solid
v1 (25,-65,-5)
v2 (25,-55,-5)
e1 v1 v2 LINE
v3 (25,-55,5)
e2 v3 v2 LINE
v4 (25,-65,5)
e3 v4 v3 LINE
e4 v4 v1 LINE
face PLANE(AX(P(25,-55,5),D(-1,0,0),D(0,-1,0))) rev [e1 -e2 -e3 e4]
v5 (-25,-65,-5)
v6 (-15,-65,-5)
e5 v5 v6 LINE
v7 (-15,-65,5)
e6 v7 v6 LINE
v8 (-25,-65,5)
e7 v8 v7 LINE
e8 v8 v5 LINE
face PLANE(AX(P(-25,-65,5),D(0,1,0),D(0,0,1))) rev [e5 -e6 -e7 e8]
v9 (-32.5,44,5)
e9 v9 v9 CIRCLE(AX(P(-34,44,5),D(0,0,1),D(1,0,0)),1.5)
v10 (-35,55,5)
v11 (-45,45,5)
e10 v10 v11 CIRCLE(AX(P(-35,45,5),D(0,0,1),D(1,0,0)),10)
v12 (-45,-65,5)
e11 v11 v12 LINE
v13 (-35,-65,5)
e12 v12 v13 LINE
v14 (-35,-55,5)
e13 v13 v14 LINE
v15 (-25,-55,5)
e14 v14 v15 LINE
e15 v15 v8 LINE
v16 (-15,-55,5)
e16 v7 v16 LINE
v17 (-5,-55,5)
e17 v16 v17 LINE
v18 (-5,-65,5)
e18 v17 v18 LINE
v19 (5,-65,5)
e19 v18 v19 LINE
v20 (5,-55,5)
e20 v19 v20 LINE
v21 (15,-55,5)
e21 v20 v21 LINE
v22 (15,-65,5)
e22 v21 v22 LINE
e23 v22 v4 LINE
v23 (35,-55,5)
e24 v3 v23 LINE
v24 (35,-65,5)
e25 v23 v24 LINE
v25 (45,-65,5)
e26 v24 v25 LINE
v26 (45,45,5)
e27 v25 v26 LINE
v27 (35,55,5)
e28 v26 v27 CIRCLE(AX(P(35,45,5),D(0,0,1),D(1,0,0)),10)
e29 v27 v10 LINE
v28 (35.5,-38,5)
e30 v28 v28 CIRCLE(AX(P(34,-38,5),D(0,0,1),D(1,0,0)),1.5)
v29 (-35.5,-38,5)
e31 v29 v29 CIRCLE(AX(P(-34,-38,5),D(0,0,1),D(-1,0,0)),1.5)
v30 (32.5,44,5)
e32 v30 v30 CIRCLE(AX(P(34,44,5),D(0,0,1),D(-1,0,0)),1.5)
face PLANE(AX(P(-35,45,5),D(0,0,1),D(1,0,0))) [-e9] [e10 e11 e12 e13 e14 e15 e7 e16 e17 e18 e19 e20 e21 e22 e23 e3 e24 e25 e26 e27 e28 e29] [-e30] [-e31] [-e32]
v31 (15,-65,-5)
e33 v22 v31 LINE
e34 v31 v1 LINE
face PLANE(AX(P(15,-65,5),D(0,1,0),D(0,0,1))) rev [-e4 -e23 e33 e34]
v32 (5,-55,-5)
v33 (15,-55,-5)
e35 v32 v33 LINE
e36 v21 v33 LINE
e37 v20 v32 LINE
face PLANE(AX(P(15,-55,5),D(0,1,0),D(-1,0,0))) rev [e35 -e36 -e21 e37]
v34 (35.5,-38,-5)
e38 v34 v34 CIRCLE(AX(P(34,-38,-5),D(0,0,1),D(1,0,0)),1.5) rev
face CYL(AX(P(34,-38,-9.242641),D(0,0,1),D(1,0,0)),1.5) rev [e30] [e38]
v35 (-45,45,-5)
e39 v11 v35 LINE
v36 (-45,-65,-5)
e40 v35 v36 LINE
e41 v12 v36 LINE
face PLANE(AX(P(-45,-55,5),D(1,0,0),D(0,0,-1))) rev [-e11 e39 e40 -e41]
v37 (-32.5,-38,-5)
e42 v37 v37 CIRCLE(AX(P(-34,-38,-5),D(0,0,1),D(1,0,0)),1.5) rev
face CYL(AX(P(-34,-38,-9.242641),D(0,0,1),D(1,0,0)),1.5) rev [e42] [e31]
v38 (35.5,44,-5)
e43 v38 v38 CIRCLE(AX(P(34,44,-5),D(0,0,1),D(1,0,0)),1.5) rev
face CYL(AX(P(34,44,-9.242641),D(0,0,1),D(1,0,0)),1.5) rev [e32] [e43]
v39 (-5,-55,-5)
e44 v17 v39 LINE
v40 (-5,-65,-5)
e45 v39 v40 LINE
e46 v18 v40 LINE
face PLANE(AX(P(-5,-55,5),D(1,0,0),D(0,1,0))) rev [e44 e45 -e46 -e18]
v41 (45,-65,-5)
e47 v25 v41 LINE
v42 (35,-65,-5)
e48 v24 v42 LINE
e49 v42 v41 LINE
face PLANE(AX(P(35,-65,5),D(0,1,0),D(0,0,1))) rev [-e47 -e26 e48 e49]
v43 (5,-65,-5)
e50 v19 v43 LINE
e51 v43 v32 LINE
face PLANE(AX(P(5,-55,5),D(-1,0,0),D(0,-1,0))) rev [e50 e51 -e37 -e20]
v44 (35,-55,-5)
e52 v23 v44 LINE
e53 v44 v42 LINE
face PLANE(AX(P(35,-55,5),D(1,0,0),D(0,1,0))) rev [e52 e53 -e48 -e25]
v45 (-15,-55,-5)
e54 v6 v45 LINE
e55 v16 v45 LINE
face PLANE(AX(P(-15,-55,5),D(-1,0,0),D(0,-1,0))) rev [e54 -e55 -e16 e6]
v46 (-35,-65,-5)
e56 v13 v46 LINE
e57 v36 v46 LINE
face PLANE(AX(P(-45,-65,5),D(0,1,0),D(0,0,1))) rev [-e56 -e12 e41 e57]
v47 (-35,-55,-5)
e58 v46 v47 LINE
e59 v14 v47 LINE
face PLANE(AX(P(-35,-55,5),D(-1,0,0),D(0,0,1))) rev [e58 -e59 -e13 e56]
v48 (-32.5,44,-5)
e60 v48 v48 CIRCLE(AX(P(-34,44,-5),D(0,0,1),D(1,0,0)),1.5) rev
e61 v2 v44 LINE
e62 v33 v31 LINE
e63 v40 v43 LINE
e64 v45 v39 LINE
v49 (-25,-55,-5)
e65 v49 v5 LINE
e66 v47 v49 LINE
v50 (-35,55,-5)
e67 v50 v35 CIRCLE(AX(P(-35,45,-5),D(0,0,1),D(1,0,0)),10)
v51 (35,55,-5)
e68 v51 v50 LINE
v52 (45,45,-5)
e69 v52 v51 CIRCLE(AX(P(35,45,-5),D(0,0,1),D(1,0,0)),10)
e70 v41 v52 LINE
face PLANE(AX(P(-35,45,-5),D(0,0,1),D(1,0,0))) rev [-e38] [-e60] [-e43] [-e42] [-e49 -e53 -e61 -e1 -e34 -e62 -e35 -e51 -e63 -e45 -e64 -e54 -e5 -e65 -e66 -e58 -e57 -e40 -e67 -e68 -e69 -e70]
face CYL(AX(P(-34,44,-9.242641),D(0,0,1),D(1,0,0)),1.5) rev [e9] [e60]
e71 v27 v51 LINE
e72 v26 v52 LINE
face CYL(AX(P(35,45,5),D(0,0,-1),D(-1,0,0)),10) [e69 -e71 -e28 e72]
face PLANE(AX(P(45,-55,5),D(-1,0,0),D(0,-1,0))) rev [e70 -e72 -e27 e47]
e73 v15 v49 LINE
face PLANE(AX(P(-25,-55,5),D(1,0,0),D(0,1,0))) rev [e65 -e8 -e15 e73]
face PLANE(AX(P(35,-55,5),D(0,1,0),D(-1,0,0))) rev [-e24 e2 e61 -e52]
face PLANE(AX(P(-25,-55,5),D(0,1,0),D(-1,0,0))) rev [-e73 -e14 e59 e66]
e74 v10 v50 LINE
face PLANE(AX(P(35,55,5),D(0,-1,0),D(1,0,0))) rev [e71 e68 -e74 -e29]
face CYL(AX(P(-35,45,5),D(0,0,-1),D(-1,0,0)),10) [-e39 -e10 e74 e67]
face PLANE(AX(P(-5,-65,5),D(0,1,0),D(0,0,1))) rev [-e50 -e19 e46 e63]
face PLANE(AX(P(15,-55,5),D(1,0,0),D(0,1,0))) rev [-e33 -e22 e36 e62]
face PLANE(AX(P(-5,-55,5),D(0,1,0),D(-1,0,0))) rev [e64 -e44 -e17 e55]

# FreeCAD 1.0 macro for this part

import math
import FreeCAD as App
import Part
import Sketcher
from FreeCAD import Vector
Q = App.Units.Quantity

doc = App.newDocument("Part")
params = doc.addObject("Spreadsheet::Sheet", "Params")
for row, (alias, value) in enumerate([
    ("sketch1_radius", "10 mm"),
    ("sketch1_height", "110 mm"),
    ("pad1_length", "10 mm"),
    ("sketch2_diameter", "3 mm"),
    ("pocket1_length", "10 mm"),
], start=1):
    params.set(f"A{row}", alias)
    params.set(f"B{row}", "=" + value)
    params.setAlias(f"B{row}", alias)

body = doc.addObject("PartDesign::Body", "Body")

# Sketch on XY plane
sketch1 = body.newObject("Sketcher::SketchObject", "Sketch")
sketch1.AttachmentSupport = (doc.getObject("XY_Plane"), [""])
sketch1.MapMode = "FlatFace"
sketch1.addGeometry(Part.LineSegment(Vector(-15, -65, 0), Vector(-15, -55, 0)), False)
sketch1.addGeometry(Part.LineSegment(Vector(-15, -55, 0), Vector(-5, -55, 0)), False)
sketch1.addGeometry(Part.LineSegment(Vector(-5, -55, 0), Vector(-5, -65, 0)), False)
sketch1.addGeometry(Part.LineSegment(Vector(-5, -65, 0), Vector(5, -65, 0)), False)
sketch1.addGeometry(Part.LineSegment(Vector(5, -65, 0), Vector(5, -55, 0)), False)
sketch1.addGeometry(Part.LineSegment(Vector(5, -55, 0), Vector(15, -55, 0)), False)
sketch1.addGeometry(Part.LineSegment(Vector(15, -55, 0), Vector(15, -65, 0)), False)
sketch1.addGeometry(Part.LineSegment(Vector(15, -65, 0), Vector(25, -65, 0)), False)
sketch1.addGeometry(Part.LineSegment(Vector(25, -65, 0), Vector(25, -55, 0)), False)
sketch1.addGeometry(Part.LineSegment(Vector(25, -55, 0), Vector(35, -55, 0)), False)
sketch1.addGeometry(Part.LineSegment(Vector(35, -55, 0), Vector(35, -65, 0)), False)
sketch1.addGeometry(Part.LineSegment(Vector(35, -65, 0), Vector(45, -65, 0)), False)
sketch1.addGeometry(Part.LineSegment(Vector(45, -65, 0), Vector(45, 45, 0)), False)
sketch1.addGeometry(Part.ArcOfCircle(Part.Circle(Vector(35, 45, 0), Vector(0, 0, 1), 10), math.radians(0), math.radians(90)), False)
sketch1.addGeometry(Part.LineSegment(Vector(35, 55, 0), Vector(-35, 55, 0)), False)
sketch1.addGeometry(Part.ArcOfCircle(Part.Circle(Vector(-35, 45, 0), Vector(0, 0, 1), 10), math.radians(90), math.radians(180)), False)
sketch1.addGeometry(Part.LineSegment(Vector(-45, 45, 0), Vector(-45, -65, 0)), False)
sketch1.addGeometry(Part.LineSegment(Vector(-45, -65, 0), Vector(-35, -65, 0)), False)
sketch1.addGeometry(Part.LineSegment(Vector(-35, -65, 0), Vector(-35, -55, 0)), False)
sketch1.addGeometry(Part.LineSegment(Vector(-35, -55, 0), Vector(-25, -55, 0)), False)
sketch1.addGeometry(Part.LineSegment(Vector(-25, -55, 0), Vector(-25, -65, 0)), False)
sketch1.addGeometry(Part.LineSegment(Vector(-25, -65, 0), Vector(-15, -65, 0)), False)
sketch1.addConstraint(Sketcher.Constraint("Coincident", 0, 2, 1, 1))
sketch1.addConstraint(Sketcher.Constraint("Coincident", 1, 2, 2, 1))
sketch1.addConstraint(Sketcher.Constraint("Coincident", 2, 2, 3, 1))
sketch1.addConstraint(Sketcher.Constraint("Coincident", 3, 2, 4, 1))
sketch1.addConstraint(Sketcher.Constraint("Coincident", 4, 2, 5, 1))
sketch1.addConstraint(Sketcher.Constraint("Coincident", 5, 2, 6, 1))
sketch1.addConstraint(Sketcher.Constraint("Coincident", 6, 2, 7, 1))
sketch1.addConstraint(Sketcher.Constraint("Coincident", 7, 2, 8, 1))
sketch1.addConstraint(Sketcher.Constraint("Coincident", 8, 2, 9, 1))
sketch1.addConstraint(Sketcher.Constraint("Coincident", 9, 2, 10, 1))
sketch1.addConstraint(Sketcher.Constraint("Coincident", 10, 2, 11, 1))
sketch1.addConstraint(Sketcher.Constraint("Coincident", 11, 2, 12, 1))
sketch1.addConstraint(Sketcher.Constraint("Tangent", 12, 2, 13, 1))
sketch1.addConstraint(Sketcher.Constraint("Tangent", 13, 2, 14, 1))
sketch1.addConstraint(Sketcher.Constraint("Tangent", 14, 2, 15, 1))
sketch1.addConstraint(Sketcher.Constraint("Tangent", 15, 2, 16, 1))
sketch1.addConstraint(Sketcher.Constraint("Coincident", 16, 2, 17, 1))
sketch1.addConstraint(Sketcher.Constraint("Coincident", 17, 2, 18, 1))
sketch1.addConstraint(Sketcher.Constraint("Coincident", 18, 2, 19, 1))
sketch1.addConstraint(Sketcher.Constraint("Coincident", 19, 2, 20, 1))
sketch1.addConstraint(Sketcher.Constraint("Coincident", 20, 2, 21, 1))
sketch1.addConstraint(Sketcher.Constraint("Coincident", 21, 2, 0, 1))
sketch1.addConstraint(Sketcher.Constraint("Vertical", 0))
sketch1.addConstraint(Sketcher.Constraint("Horizontal", 1))
sketch1.addConstraint(Sketcher.Constraint("Vertical", 2))
sketch1.addConstraint(Sketcher.Constraint("Horizontal", 3))
sketch1.addConstraint(Sketcher.Constraint("Vertical", 4))
sketch1.addConstraint(Sketcher.Constraint("Horizontal", 5))
sketch1.addConstraint(Sketcher.Constraint("Vertical", 6))
sketch1.addConstraint(Sketcher.Constraint("Horizontal", 7))
sketch1.addConstraint(Sketcher.Constraint("Vertical", 8))
sketch1.addConstraint(Sketcher.Constraint("Horizontal", 9))
sketch1.addConstraint(Sketcher.Constraint("Vertical", 10))
sketch1.addConstraint(Sketcher.Constraint("Horizontal", 11))
sketch1.addConstraint(Sketcher.Constraint("Vertical", 12))
sketch1.addConstraint(Sketcher.Constraint("Horizontal", 14))
sketch1.addConstraint(Sketcher.Constraint("Vertical", 16))
sketch1.addConstraint(Sketcher.Constraint("Horizontal", 17))
sketch1.addConstraint(Sketcher.Constraint("Vertical", 18))
sketch1.addConstraint(Sketcher.Constraint("Horizontal", 19))
sketch1.addConstraint(Sketcher.Constraint("Vertical", 20))
sketch1.addConstraint(Sketcher.Constraint("Horizontal", 21))
sketch1.addConstraint(Sketcher.Constraint("Equal", 13, 15))
sketch1.addConstraint(Sketcher.Constraint("Symmetric", 9, 2, 14, 2, -1, 1))
sketch1.addConstraint(Sketcher.Constraint("Symmetric", 13, 2, 18, 2, -1, 1))
sketch1.addConstraint(Sketcher.Constraint("Symmetric", 1, 2, 4, 2, -2))
sketch1.addConstraint(Sketcher.Constraint("Symmetric", 11, 2, 16, 2, -2))
sketch1.addConstraint(Sketcher.Constraint("Symmetric", 7, 2, 20, 2, -2))
sketch1.addConstraint(Sketcher.Constraint("Horizontal", 3, 2, 6, 2))
sketch1.addConstraint(Sketcher.Constraint("Horizontal", 5, 2, 8, 2))
sketch1.addConstraint(Sketcher.Constraint("Horizontal", 7, 2, 10, 2))
sketch1.addConstraint(Sketcher.Constraint("Equal", 1, 3))
sketch1.addConstraint(Sketcher.Constraint("Equal", 3, 5))
sketch1.addConstraint(Sketcher.Constraint("Equal", 5, 7))
sketch1.addConstraint(Sketcher.Constraint("Equal", 7, 9))
sketch1.addConstraint(Sketcher.Constraint("Equal", 9, 11))
sketch1.addConstraint(Sketcher.Constraint("Equal", 21, 0))
sketch1.addConstraint(Sketcher.Constraint("Radius", 13, Q("10 mm")))
sketch1.addConstraint(Sketcher.Constraint("DistanceY", 12, 1, 12, 2, Q("110 mm")))
sketch1.setExpression("Constraints[57]", "Params.sketch1_radius")
sketch1.setExpression("Constraints[58]", "Params.sketch1_height")
pad1 = body.newObject("PartDesign::Pad", "Pad")
pad1.Profile = sketch1
pad1.setExpression("Length", "Params.pad1_length")
pad1.Midplane = True

# Sketch on XY plane
sketch2 = body.newObject("Sketcher::SketchObject", "Sketch001")
sketch2.AttachmentSupport = (doc.getObject("XY_Plane"), [""])
sketch2.MapMode = "FlatFace"
sketch2.AttachmentOffset = App.Placement(Vector(0, 0, 5), App.Rotation())
sketch2.addGeometry(Part.Circle(Vector(-34, 44, 0), Vector(0, 0, 1), 1.5), False)
sketch2.addGeometry(Part.Circle(Vector(34, 44, 0), Vector(0, 0, 1), 1.5), False)
sketch2.addGeometry(Part.Circle(Vector(34, -38, 0), Vector(0, 0, 1), 1.5), False)
sketch2.addGeometry(Part.Circle(Vector(-34, -38, 0), Vector(0, 0, 1), 1.5), False)
sketch2.addConstraint(Sketcher.Constraint("Equal", 0, 1))
sketch2.addConstraint(Sketcher.Constraint("Equal", 1, 2))
sketch2.addConstraint(Sketcher.Constraint("Equal", 2, 3))
sketch2.addConstraint(Sketcher.Constraint("Symmetric", 0, 3, 1, 3, -2))
sketch2.addConstraint(Sketcher.Constraint("Symmetric", 2, 3, 3, 3, -2))
sketch2.addConstraint(Sketcher.Constraint("Vertical", 1, 3, 2, 3))
sketch2.addConstraint(Sketcher.Constraint("Diameter", 0, Q("3 mm")))
sketch2.addConstraint(Sketcher.Constraint("DistanceX", 0, 3, -1, 1, Q("34 mm")))
sketch2.addConstraint(Sketcher.Constraint("DistanceY", -1, 1, 0, 3, Q("44 mm")))
sketch2.addConstraint(Sketcher.Constraint("DistanceY", 2, 3, -1, 1, Q("38 mm")))
sketch2.setExpression("Constraints[6]", "Params.sketch2_diameter")
pocket1 = body.newObject("PartDesign::Pocket", "Pocket")
pocket1.Profile = sketch2
pocket1.setExpression("Length", "Params.pocket1_length")

doc.recompute()
